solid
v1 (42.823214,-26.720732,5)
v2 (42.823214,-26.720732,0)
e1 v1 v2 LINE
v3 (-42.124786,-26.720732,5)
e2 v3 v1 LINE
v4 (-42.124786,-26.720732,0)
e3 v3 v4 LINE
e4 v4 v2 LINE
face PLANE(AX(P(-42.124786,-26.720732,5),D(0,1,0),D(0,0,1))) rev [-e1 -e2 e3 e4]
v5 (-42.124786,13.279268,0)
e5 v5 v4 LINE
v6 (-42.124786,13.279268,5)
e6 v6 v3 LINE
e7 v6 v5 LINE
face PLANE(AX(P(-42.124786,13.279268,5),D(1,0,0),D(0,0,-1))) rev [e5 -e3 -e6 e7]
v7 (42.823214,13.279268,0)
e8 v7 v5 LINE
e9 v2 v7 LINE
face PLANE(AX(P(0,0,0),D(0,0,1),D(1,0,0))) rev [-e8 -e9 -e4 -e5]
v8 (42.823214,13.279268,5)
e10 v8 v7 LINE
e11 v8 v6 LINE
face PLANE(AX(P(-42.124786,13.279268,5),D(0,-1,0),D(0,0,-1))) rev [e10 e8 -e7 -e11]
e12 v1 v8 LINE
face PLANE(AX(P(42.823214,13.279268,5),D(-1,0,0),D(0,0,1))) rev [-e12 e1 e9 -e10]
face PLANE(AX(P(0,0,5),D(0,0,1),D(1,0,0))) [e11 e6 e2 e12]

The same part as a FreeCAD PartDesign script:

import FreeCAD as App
import Part
import Sketcher

V = App.Vector


def add_polygon(sketch, points):
    """Adds a closed chain of lines whose ends are joined by coincident constraints."""
    first, n = sketch.GeometryCount, len(points)
    for a, b in zip(points, points[1:] + points[:1]):
        sketch.addGeometry(Part.LineSegment(App.Vector(*a, 0), App.Vector(*b, 0)), False)
    for i in range(n):
        sketch.addConstraint(Sketcher.Constraint("Coincident", first + i, 2, first + (i + 1) % n, 1))

doc = App.newDocument("Part")
body = doc.addObject("PartDesign::Body", "Body")

# Sketch on XY plane
sketch1 = body.newObject("Sketcher::SketchObject", "Sketch")
sketch1.AttachmentSupport = (doc.getObject("XY_Plane"), [""])
sketch1.MapMode = "FlatFace"
add_polygon(sketch1, [(-42, 13), (-42, -27), (43, -27), (43, 13)])  # lines 0-3
sketch1.addConstraint(Sketcher.Constraint("Vertical", 0))
sketch1.addConstraint(Sketcher.Constraint("Horizontal", 1))
sketch1.addConstraint(Sketcher.Constraint("Vertical", 2))
sketch1.addConstraint(Sketcher.Constraint("Horizontal", 3))
sketch1.addConstraint(Sketcher.Constraint("DistanceY", 0, 2, 0, 1, 40.0))
sketch1.addConstraint(Sketcher.Constraint("DistanceX", 1, 1, 1, 2, 84.948))
sketch1.addConstraint(Sketcher.Constraint("DistanceX", 0, 2, -1, 1, 42.124786))
sketch1.addConstraint(Sketcher.Constraint("DistanceY", 0, 2, -1, 1, 26.720732))
pad1 = body.newObject("PartDesign::Pad", "Pad")
pad1.Profile = sketch1
pad1.Length = 5

doc.recompute()
